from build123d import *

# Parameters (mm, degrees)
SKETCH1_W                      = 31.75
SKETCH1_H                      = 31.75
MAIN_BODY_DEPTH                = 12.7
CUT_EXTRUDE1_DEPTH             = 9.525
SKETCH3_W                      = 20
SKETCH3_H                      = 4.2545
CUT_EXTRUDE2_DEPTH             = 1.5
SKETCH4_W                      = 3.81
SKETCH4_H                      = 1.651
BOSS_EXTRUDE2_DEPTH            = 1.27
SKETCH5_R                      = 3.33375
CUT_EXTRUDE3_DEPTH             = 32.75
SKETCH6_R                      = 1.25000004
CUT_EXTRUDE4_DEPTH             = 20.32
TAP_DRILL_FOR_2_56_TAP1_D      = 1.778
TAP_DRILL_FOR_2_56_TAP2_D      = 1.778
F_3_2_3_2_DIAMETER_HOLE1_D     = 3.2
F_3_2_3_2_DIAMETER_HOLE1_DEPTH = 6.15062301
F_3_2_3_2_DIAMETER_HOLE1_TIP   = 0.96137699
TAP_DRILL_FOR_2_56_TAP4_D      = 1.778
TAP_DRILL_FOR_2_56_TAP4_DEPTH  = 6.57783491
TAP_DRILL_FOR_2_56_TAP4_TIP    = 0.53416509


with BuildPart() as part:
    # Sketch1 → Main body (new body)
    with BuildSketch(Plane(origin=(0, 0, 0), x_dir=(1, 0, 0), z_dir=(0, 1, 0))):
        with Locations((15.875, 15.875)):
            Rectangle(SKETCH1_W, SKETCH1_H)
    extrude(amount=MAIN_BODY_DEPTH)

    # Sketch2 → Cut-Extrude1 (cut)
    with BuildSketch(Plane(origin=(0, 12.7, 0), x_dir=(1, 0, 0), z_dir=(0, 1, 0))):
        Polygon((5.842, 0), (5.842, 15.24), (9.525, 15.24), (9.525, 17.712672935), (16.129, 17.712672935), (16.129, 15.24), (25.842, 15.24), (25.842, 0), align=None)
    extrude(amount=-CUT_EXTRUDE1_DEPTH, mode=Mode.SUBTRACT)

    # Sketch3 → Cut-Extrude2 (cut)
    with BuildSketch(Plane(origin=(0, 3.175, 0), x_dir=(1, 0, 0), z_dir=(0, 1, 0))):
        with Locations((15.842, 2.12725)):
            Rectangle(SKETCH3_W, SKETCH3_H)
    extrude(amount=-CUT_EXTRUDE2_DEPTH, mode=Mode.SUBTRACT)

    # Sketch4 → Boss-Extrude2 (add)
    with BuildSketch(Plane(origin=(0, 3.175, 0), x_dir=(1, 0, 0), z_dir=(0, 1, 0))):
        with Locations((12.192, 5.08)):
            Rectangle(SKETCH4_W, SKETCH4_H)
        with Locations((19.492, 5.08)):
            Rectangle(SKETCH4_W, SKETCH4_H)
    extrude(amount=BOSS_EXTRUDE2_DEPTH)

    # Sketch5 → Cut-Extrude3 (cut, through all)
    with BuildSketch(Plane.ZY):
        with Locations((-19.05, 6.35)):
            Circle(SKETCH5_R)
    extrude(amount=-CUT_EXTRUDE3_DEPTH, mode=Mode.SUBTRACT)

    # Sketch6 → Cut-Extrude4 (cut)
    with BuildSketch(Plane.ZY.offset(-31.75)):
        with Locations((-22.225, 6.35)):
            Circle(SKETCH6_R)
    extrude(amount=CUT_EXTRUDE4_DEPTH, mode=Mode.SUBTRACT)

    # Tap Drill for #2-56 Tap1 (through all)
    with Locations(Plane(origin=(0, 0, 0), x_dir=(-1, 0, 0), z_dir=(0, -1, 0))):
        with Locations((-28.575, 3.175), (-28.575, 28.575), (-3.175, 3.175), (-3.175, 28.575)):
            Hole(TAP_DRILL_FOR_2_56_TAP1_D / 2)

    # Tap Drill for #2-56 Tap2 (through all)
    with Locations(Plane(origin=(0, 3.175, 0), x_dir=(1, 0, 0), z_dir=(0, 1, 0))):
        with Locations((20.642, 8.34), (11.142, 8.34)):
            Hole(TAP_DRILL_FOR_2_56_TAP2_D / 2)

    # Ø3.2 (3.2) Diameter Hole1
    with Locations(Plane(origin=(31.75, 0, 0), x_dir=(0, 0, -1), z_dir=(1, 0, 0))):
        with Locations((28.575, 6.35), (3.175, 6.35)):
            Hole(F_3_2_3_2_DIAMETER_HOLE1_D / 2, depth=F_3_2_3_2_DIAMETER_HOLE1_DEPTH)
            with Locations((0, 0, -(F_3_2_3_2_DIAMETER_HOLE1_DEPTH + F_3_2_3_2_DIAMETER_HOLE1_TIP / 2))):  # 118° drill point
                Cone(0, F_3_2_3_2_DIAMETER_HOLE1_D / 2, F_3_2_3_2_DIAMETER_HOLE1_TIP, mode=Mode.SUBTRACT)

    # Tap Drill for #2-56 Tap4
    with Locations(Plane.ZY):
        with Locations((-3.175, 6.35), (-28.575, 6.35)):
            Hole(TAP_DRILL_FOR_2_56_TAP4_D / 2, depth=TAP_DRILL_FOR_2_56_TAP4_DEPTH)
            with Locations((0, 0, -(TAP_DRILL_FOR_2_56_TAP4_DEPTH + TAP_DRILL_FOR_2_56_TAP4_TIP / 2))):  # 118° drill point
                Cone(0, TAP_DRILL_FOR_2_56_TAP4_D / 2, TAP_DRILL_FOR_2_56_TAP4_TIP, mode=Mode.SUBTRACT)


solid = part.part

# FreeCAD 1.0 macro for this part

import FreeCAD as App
import Part
import Sketcher
from FreeCAD import Vector
Q = App.Units.Quantity

doc = App.newDocument("Part")
body = doc.addObject("PartDesign::Body", "Body")

# Sketch on XZ plane
sketch1 = doc.addObject("Sketcher::SketchObject", "Sketch")
body.addObject(sketch1)
sketch1.AttachmentSupport = (doc.XZ_Plane, [""])
sketch1.MapMode = "FlatFace"
sketch1.addGeometry(Part.LineSegment(Vector(0, -32, 0), Vector(0, 0, 0)), False)
sketch1.addGeometry(Part.LineSegment(Vector(0, 0, 0), Vector(32, 0, 0)), False)
sketch1.addGeometry(Part.LineSegment(Vector(32, 0, 0), Vector(32, -32, 0)), False)
sketch1.addGeometry(Part.LineSegment(Vector(32, -32, 0), Vector(0, -32, 0)), False)
sketch1.addConstraint(Sketcher.Constraint("Coincident", 0, 2, 1, 1))
sketch1.addConstraint(Sketcher.Constraint("Coincident", 1, 2, 2, 1))
sketch1.addConstraint(Sketcher.Constraint("Coincident", 2, 2, 3, 1))
sketch1.addConstraint(Sketcher.Constraint("Coincident", 3, 2, 0, 1))
sketch1.addConstraint(Sketcher.Constraint("Vertical", 0))
sketch1.addConstraint(Sketcher.Constraint("Horizontal", 1))
sketch1.addConstraint(Sketcher.Constraint("Vertical", 2))
sketch1.addConstraint(Sketcher.Constraint("Horizontal", 3))
sketch1.addConstraint(Sketcher.Constraint("Coincident", 0, 2, -1, 1))
sketch1.addConstraint(Sketcher.Constraint("Equal", 3, 0))
sketch1.addConstraint(Sketcher.Constraint("DistanceX", 1, 1, 1, 2, Q("1.25 in")))
pad1 = doc.addObject("PartDesign::Pad", "Pad")
body.addObject(pad1)
pad1.Profile = sketch1
pad1.Length = Q("0.5 in")
pad1.Reversed = True

# Sketch on XZ plane
sketch2 = doc.addObject("Sketcher::SketchObject", "Sketch001")
body.addObject(sketch2)
sketch2.AttachmentSupport = (doc.XZ_Plane, [""])
sketch2.MapMode = "FlatFace"
sketch2.AttachmentOffset = App.Placement(Vector(0, 0, -0.5 * 25.4), App.Rotation())
sketch2.addGeometry(Part.LineSegment(Vector(5.8, -15.2, 0), Vector(5.8, 0, 0)), False)
sketch2.addGeometry(Part.LineSegment(Vector(5.8, 0, 0), Vector(25.8, 0, 0)), False)
sketch2.addGeometry(Part.LineSegment(Vector(25.8, 0, 0), Vector(25.8, -15.2, 0)), False)
sketch2.addGeometry(Part.LineSegment(Vector(25.8, -15.2, 0), Vector(16.1, -15.2, 0)), False)
sketch2.addGeometry(Part.LineSegment(Vector(16.1, -15.2, 0), Vector(16.1, -17.7, 0)), False)
sketch2.addGeometry(Part.LineSegment(Vector(16.1, -17.7, 0), Vector(9.5, -17.7, 0)), False)
sketch2.addGeometry(Part.LineSegment(Vector(9.5, -17.7, 0), Vector(9.5, -15.2, 0)), False)
sketch2.addGeometry(Part.LineSegment(Vector(9.5, -15.2, 0), Vector(5.8, -15.2, 0)), False)
sketch2.addConstraint(Sketcher.Constraint("Coincident", 0, 2, 1, 1))
sketch2.addConstraint(Sketcher.Constraint("Coincident", 1, 2, 2, 1))
sketch2.addConstraint(Sketcher.Constraint("Coincident", 2, 2, 3, 1))
sketch2.addConstraint(Sketcher.Constraint("Coincident", 3, 2, 4, 1))
sketch2.addConstraint(Sketcher.Constraint("Coincident", 4, 2, 5, 1))
sketch2.addConstraint(Sketcher.Constraint("Coincident", 5, 2, 6, 1))
sketch2.addConstraint(Sketcher.Constraint("Coincident", 6, 2, 7, 1))
sketch2.addConstraint(Sketcher.Constraint("Coincident", 7, 2, 0, 1))
sketch2.addConstraint(Sketcher.Constraint("Vertical", 0))
sketch2.addConstraint(Sketcher.Constraint("Horizontal", 1))
sketch2.addConstraint(Sketcher.Constraint("Vertical", 2))
sketch2.addConstraint(Sketcher.Constraint("Horizontal", 3))
sketch2.addConstraint(Sketcher.Constraint("Vertical", 4))
sketch2.addConstraint(Sketcher.Constraint("Horizontal", 5))
sketch2.addConstraint(Sketcher.Constraint("Vertical", 6))
sketch2.addConstraint(Sketcher.Constraint("Horizontal", 7))
sketch2.addConstraint(Sketcher.Constraint("PointOnObject", 0, 2, -1))
sketch2.addConstraint(Sketcher.Constraint("Horizontal", 3, 2, 6, 2))
sketch2.addConstraint(Sketcher.Constraint("DistanceY", 0, 1, 0, 2, Q("0.6 in")))
sketch2.addConstraint(Sketcher.Constraint("DistanceX", 5, 2, 5, 1, Q("0.26 in")))
sketch2.addConstraint(Sketcher.Constraint("DistanceX", 7, 2, 7, 1, Q("0.145 in")))
sketch2.addConstraint(Sketcher.Constraint("DistanceX", -1, 1, 0, 2, Q("0.23 in")))
sketch2.addConstraint(Sketcher.Constraint("DistanceX", 1, 1, 1, 2, Q("20 mm")))
sketch2.addConstraint(Sketcher.Constraint("DistanceY", 4, 2, 4, 1, Q("2.472673 mm")))
pocket1 = doc.addObject("PartDesign::Pocket", "Pocket")
body.addObject(pocket1)
pocket1.Profile = sketch2
pocket1.Length = Q("0.375 in")
pocket1.Reversed = True

# Sketch on XZ plane
sketch3 = doc.addObject("Sketcher::SketchObject", "Sketch002")
body.addObject(sketch3)
sketch3.AttachmentSupport = (doc.XZ_Plane, [""])
sketch3.MapMode = "FlatFace"
sketch3.AttachmentOffset = App.Placement(Vector(0, 0, -0.125 * 25.4), App.Rotation())
sketch3.addGeometry(Part.LineSegment(Vector(5.8, -4.3, 0), Vector(5.8, 0, 0)), False)
sketch3.addGeometry(Part.LineSegment(Vector(5.8, 0, 0), Vector(25.8, 0, 0)), False)
sketch3.addGeometry(Part.LineSegment(Vector(25.8, 0, 0), Vector(25.8, -4.3, 0)), False)
sketch3.addGeometry(Part.LineSegment(Vector(25.8, -4.3, 0), Vector(5.8, -4.3, 0)), False)
sketch3.addConstraint(Sketcher.Constraint("Coincident", 0, 2, 1, 1))
sketch3.addConstraint(Sketcher.Constraint("Coincident", 1, 2, 2, 1))
sketch3.addConstraint(Sketcher.Constraint("Coincident", 2, 2, 3, 1))
sketch3.addConstraint(Sketcher.Constraint("Coincident", 3, 2, 0, 1))
sketch3.addConstraint(Sketcher.Constraint("Vertical", 0))
sketch3.addConstraint(Sketcher.Constraint("Horizontal", 1))
sketch3.addConstraint(Sketcher.Constraint("Vertical", 2))
sketch3.addConstraint(Sketcher.Constraint("Horizontal", 3))
sketch3.addConstraint(Sketcher.Constraint("PointOnObject", 0, 2, -1))
sketch3.addConstraint(Sketcher.Constraint("DistanceX", -1, 1, 0, 2, Q("0.23 in")))
sketch3.addConstraint(Sketcher.Constraint("DistanceY", 0, 1, 0, 2, Q("0.1675 in")))
sketch3.addConstraint(Sketcher.Constraint("DistanceX", 1, 1, 1, 2, Q("20 mm")))
pocket2 = doc.addObject("PartDesign::Pocket", "Pocket001")
body.addObject(pocket2)
pocket2.Profile = sketch3
pocket2.Length = 1.5
pocket2.Reversed = True

# Sketch on XZ plane
sketch4 = doc.addObject("Sketcher::SketchObject", "Sketch003")
body.addObject(sketch4)
sketch4.AttachmentSupport = (doc.XZ_Plane, [""])
sketch4.MapMode = "FlatFace"
sketch4.AttachmentOffset = App.Placement(Vector(0, 0, -0.125 * 25.4), App.Rotation())
sketch4.addGeometry(Part.LineSegment(Vector(10.3, -5.9, 0), Vector(10.3, -4.3, 0)), False)
sketch4.addGeometry(Part.LineSegment(Vector(10.3, -4.3, 0), Vector(14.1, -4.3, 0)), False)
sketch4.addGeometry(Part.LineSegment(Vector(14.1, -4.3, 0), Vector(14.1, -5.9, 0)), False)
sketch4.addGeometry(Part.LineSegment(Vector(14.1, -5.9, 0), Vector(10.3, -5.9, 0)), False)
sketch4.addGeometry(Part.LineSegment(Vector(17.6, -5.9, 0), Vector(17.6, -4.3, 0)), False)
sketch4.addGeometry(Part.LineSegment(Vector(17.6, -4.3, 0), Vector(21.4, -4.3, 0)), False)
sketch4.addGeometry(Part.LineSegment(Vector(21.4, -4.3, 0), Vector(21.4, -5.9, 0)), False)
sketch4.addGeometry(Part.LineSegment(Vector(21.4, -5.9, 0), Vector(17.6, -5.9, 0)), False)
sketch4.addConstraint(Sketcher.Constraint("Coincident", 0, 2, 1, 1))
sketch4.addConstraint(Sketcher.Constraint("Coincident", 1, 2, 2, 1))
sketch4.addConstraint(Sketcher.Constraint("Coincident", 2, 2, 3, 1))
sketch4.addConstraint(Sketcher.Constraint("Coincident", 3, 2, 0, 1))
sketch4.addConstraint(Sketcher.Constraint("Coincident", 4, 2, 5, 1))
sketch4.addConstraint(Sketcher.Constraint("Coincident", 5, 2, 6, 1))
sketch4.addConstraint(Sketcher.Constraint("Coincident", 6, 2, 7, 1))
sketch4.addConstraint(Sketcher.Constraint("Coincident", 7, 2, 4, 1))
sketch4.addConstraint(Sketcher.Constraint("Vertical", 0))
sketch4.addConstraint(Sketcher.Constraint("Horizontal", 1))
sketch4.addConstraint(Sketcher.Constraint("Vertical", 2))
sketch4.addConstraint(Sketcher.Constraint("Horizontal", 3))
sketch4.addConstraint(Sketcher.Constraint("Vertical", 4))
sketch4.addConstraint(Sketcher.Constraint("Horizontal", 5))
sketch4.addConstraint(Sketcher.Constraint("Vertical", 6))
sketch4.addConstraint(Sketcher.Constraint("Horizontal", 7))
sketch4.addConstraint(Sketcher.Constraint("Horizontal", 1, 2, 4, 2))
sketch4.addConstraint(Sketcher.Constraint("Horizontal", 3, 2, 6, 2))
sketch4.addConstraint(Sketcher.Constraint("Equal", 3, 5))
sketch4.addConstraint(Sketcher.Constraint("DistanceX", 1, 1, 1, 2, Q("0.15 in")))
sketch4.addConstraint(Sketcher.Constraint("DistanceY", 0, 1, 0, 2, Q("0.065 in")))
sketch4.addConstraint(Sketcher.Constraint("DistanceX", -1, 1, 0, 2, Q("0.405 in")))
sketch4.addConstraint(Sketcher.Constraint("DistanceY", 0, 2, -1, 1, Q("0.1675 in")))
sketch4.addConstraint(Sketcher.Constraint("DistanceX", -1, 1, 4, 2, Q("17.587 mm")))
pad2 = doc.addObject("PartDesign::Pad", "Pad001")
body.addObject(pad2)
pad2.Profile = sketch4
pad2.Length = Q("0.05 in")
pad2.Reversed = True

# Sketch on YZ plane
sketch5 = doc.addObject("Sketcher::SketchObject", "Sketch004")
body.addObject(sketch5)
sketch5.AttachmentSupport = (doc.YZ_Plane, [""])
sketch5.MapMode = "FlatFace"
sketch5.addGeometry(Part.Circle(Vector(6.3, -19.1, 0), Vector(0, 0, 1), 3.3), False)
sketch5.addConstraint(Sketcher.Constraint("Diameter", 0, Q("0.2625 in")))
sketch5.addConstraint(Sketcher.Constraint("DistanceX", -1, 1, 0, 3, Q("0.25 in")))
sketch5.addConstraint(Sketcher.Constraint("DistanceY", 0, 3, -1, 1, Q("0.75 in")))
pocket3 = doc.addObject("PartDesign::Pocket", "Pocket002")
body.addObject(pocket3)
pocket3.Profile = sketch5
pocket3.Type = "ThroughAll"
pocket3.Reversed = True

# Sketch on YZ plane
sketch6 = doc.addObject("Sketcher::SketchObject", "Sketch005")
body.addObject(sketch6)
sketch6.AttachmentSupport = (doc.YZ_Plane, [""])
sketch6.MapMode = "FlatFace"
sketch6.AttachmentOffset = App.Placement(Vector(0, 0, 1.25 * 25.4), App.Rotation())
sketch6.addGeometry(Part.Circle(Vector(6.3, -22.2, 0), Vector(0, 0, 1), 1.3), False)
sketch6.addConstraint(Sketcher.Constraint("Diameter", 0, Q("2.5 mm")))
sketch6.addConstraint(Sketcher.Constraint("DistanceX", -1, 1, 0, 3, Q("0.25 in")))
sketch6.addConstraint(Sketcher.Constraint("DistanceY", 0, 3, -1, 1, Q("0.875 in")))
pocket4 = doc.addObject("PartDesign::Pocket", "Pocket003")
body.addObject(pocket4)
pocket4.Profile = sketch6
pocket4.Length = Q("0.8 in")

# Sketch on XZ plane
sketch7 = doc.addObject("Sketcher::SketchObject", "Sketch006")
body.addObject(sketch7)
sketch7.AttachmentSupport = (doc.XZ_Plane, [""])
sketch7.MapMode = "FlatFace"
sketch7.addGeometry(Part.Circle(Vector(28.6, -3.2, 0), Vector(0, 0, 1), 0.9), False)
sketch7.addGeometry(Part.Circle(Vector(28.6, -28.6, 0), Vector(0, 0, 1), 0.9), False)
sketch7.addGeometry(Part.Circle(Vector(3.2, -3.2, 0), Vector(0, 0, 1), 0.9), False)
sketch7.addGeometry(Part.Circle(Vector(3.2, -28.6, 0), Vector(0, 0, 1), 0.9), False)
sketch7.addConstraint(Sketcher.Constraint("Equal", 0, 1))
sketch7.addConstraint(Sketcher.Constraint("Equal", 1, 2))
sketch7.addConstraint(Sketcher.Constraint("Equal", 2, 3))
sketch7.addConstraint(Sketcher.Constraint("Horizontal", 0, 3, 2, 3))
sketch7.addConstraint(Sketcher.Constraint("Horizontal", 1, 3, 3, 3))
sketch7.addConstraint(Sketcher.Constraint("Vertical", 0, 3, 1, 3))
sketch7.addConstraint(Sketcher.Constraint("Vertical", 2, 3, 3, 3))
sketch7.addConstraint(Sketcher.Constraint("Diameter", 0, Q("0.07 in")))
sketch7.addConstraint(Sketcher.Constraint("DistanceY", 1, 3, 0, 3, Q("1 in")))
sketch7.addConstraint(Sketcher.Constraint("DistanceX", 2, 3, 0, 3, Q("1 in")))
sketch7.addConstraint(Sketcher.Constraint("DistanceX", -1, 1, 0, 3, Q("1.125 in")))
sketch7.addConstraint(Sketcher.Constraint("DistanceY", 0, 3, -1, 1, Q("0.125 in")))
doc.recompute()
hole = doc.addObject("PartDesign::Hole", "Hole")
body.addObject(hole)
hole.Profile = sketch7
hole.ThreadType = "None"
hole.Diameter = Q("0.07 in")
hole.DepthType = "ThroughAll"

# Sketch on XZ plane
sketch8 = doc.addObject("Sketcher::SketchObject", "Sketch007")
body.addObject(sketch8)
sketch8.AttachmentSupport = (doc.XZ_Plane, [""])
sketch8.MapMode = "FlatFace"
sketch8.AttachmentOffset = App.Placement(Vector(0, 0, -0.125 * 25.4), App.Rotation())
sketch8.addGeometry(Part.Circle(Vector(20.6, -8.3, 0), Vector(0, 0, 1), 0.9), False)
sketch8.addGeometry(Part.Circle(Vector(11.1, -8.3, 0), Vector(0, 0, 1), 0.9), False)
sketch8.addConstraint(Sketcher.Constraint("Equal", 0, 1))
sketch8.addConstraint(Sketcher.Constraint("Horizontal", 0, 3, 1, 3))
sketch8.addConstraint(Sketcher.Constraint("Diameter", 0, Q("0.07 in")))
sketch8.addConstraint(Sketcher.Constraint("DistanceX", -1, 1, 0, 3, Q("20.642 mm")))
sketch8.addConstraint(Sketcher.Constraint("DistanceY", 0, 3, -1, 1, Q("8.34 mm")))
sketch8.addConstraint(Sketcher.Constraint("DistanceX", -1, 1, 1, 3, Q("11.142 mm")))
doc.recompute()
hole2 = doc.addObject("PartDesign::Hole", "Hole001")
body.addObject(hole2)
hole2.Profile = sketch8
hole2.ThreadType = "None"
hole2.Diameter = Q("0.07 in")
hole2.DepthType = "ThroughAll"
hole2.Reversed = True

# Sketch on YZ plane
sketch9 = doc.addObject("Sketcher::SketchObject", "Sketch008")
body.addObject(sketch9)
sketch9.AttachmentSupport = (doc.YZ_Plane, [""])
sketch9.MapMode = "FlatFace"
sketch9.AttachmentOffset = App.Placement(Vector(0, 0, 1.25 * 25.4), App.Rotation())
sketch9.addGeometry(Part.Circle(Vector(6.3, -28.6, 0), Vector(0, 0, 1), 1.6), False)
sketch9.addGeometry(Part.Circle(Vector(6.3, -3.2, 0), Vector(0, 0, 1), 1.6), False)
sketch9.addConstraint(Sketcher.Constraint("Equal", 0, 1))
sketch9.addConstraint(Sketcher.Constraint("Vertical", 0, 3, 1, 3))
sketch9.addConstraint(Sketcher.Constraint("DistanceY", 0, 3, 1, 3, Q("1 in")))
sketch9.addConstraint(Sketcher.Constraint("Diameter", 0, Q("3.2 mm")))
sketch9.addConstraint(Sketcher.Constraint("DistanceX", -1, 1, 0, 3, Q("0.25 in")))
sketch9.addConstraint(Sketcher.Constraint("DistanceY", 0, 3, -1, 1, Q("1.125 in")))
doc.recompute()
hole3 = doc.addObject("PartDesign::Hole", "Hole002")
body.addObject(hole3)
hole3.Profile = sketch9
hole3.ThreadType = "None"
hole3.Diameter = 3.2
hole3.DepthType = "Dimension"
hole3.Depth = 6.150623
hole3.DrillPoint = "Angled"
hole3.DrillPointAngle = 118

# Sketch on YZ plane
sketch10 = doc.addObject("Sketcher::SketchObject", "Sketch009")
body.addObject(sketch10)
sketch10.AttachmentSupport = (doc.YZ_Plane, [""])
sketch10.MapMode = "FlatFace"
sketch10.addGeometry(Part.Circle(Vector(6.3, -3.2, 0), Vector(0, 0, 1), 0.9), False)
sketch10.addGeometry(Part.Circle(Vector(6.3, -28.6, 0), Vector(0, 0, 1), 0.9), False)
sketch10.addConstraint(Sketcher.Constraint("Equal", 0, 1))
sketch10.addConstraint(Sketcher.Constraint("Vertical", 0, 3, 1, 3))
sketch10.addConstraint(Sketcher.Constraint("Diameter", 0, Q("0.07 in")))
sketch10.addConstraint(Sketcher.Constraint("DistanceY", 1, 3, 0, 3, Q("1 in")))
sketch10.addConstraint(Sketcher.Constraint("DistanceX", -1, 1, 0, 3, Q("0.25 in")))
sketch10.addConstraint(Sketcher.Constraint("DistanceY", 0, 3, -1, 1, Q("0.125 in")))
doc.recompute()
hole4 = doc.addObject("PartDesign::Hole", "Hole003")
body.addObject(hole4)
hole4.Profile = sketch10
hole4.ThreadType = "None"
hole4.Diameter = Q("0.07 in")
hole4.DepthType = "Dimension"
hole4.Depth = 6.577835
hole4.DrillPoint = "Angled"
hole4.DrillPointAngle = 118
hole4.Reversed = True

doc.recompute()
